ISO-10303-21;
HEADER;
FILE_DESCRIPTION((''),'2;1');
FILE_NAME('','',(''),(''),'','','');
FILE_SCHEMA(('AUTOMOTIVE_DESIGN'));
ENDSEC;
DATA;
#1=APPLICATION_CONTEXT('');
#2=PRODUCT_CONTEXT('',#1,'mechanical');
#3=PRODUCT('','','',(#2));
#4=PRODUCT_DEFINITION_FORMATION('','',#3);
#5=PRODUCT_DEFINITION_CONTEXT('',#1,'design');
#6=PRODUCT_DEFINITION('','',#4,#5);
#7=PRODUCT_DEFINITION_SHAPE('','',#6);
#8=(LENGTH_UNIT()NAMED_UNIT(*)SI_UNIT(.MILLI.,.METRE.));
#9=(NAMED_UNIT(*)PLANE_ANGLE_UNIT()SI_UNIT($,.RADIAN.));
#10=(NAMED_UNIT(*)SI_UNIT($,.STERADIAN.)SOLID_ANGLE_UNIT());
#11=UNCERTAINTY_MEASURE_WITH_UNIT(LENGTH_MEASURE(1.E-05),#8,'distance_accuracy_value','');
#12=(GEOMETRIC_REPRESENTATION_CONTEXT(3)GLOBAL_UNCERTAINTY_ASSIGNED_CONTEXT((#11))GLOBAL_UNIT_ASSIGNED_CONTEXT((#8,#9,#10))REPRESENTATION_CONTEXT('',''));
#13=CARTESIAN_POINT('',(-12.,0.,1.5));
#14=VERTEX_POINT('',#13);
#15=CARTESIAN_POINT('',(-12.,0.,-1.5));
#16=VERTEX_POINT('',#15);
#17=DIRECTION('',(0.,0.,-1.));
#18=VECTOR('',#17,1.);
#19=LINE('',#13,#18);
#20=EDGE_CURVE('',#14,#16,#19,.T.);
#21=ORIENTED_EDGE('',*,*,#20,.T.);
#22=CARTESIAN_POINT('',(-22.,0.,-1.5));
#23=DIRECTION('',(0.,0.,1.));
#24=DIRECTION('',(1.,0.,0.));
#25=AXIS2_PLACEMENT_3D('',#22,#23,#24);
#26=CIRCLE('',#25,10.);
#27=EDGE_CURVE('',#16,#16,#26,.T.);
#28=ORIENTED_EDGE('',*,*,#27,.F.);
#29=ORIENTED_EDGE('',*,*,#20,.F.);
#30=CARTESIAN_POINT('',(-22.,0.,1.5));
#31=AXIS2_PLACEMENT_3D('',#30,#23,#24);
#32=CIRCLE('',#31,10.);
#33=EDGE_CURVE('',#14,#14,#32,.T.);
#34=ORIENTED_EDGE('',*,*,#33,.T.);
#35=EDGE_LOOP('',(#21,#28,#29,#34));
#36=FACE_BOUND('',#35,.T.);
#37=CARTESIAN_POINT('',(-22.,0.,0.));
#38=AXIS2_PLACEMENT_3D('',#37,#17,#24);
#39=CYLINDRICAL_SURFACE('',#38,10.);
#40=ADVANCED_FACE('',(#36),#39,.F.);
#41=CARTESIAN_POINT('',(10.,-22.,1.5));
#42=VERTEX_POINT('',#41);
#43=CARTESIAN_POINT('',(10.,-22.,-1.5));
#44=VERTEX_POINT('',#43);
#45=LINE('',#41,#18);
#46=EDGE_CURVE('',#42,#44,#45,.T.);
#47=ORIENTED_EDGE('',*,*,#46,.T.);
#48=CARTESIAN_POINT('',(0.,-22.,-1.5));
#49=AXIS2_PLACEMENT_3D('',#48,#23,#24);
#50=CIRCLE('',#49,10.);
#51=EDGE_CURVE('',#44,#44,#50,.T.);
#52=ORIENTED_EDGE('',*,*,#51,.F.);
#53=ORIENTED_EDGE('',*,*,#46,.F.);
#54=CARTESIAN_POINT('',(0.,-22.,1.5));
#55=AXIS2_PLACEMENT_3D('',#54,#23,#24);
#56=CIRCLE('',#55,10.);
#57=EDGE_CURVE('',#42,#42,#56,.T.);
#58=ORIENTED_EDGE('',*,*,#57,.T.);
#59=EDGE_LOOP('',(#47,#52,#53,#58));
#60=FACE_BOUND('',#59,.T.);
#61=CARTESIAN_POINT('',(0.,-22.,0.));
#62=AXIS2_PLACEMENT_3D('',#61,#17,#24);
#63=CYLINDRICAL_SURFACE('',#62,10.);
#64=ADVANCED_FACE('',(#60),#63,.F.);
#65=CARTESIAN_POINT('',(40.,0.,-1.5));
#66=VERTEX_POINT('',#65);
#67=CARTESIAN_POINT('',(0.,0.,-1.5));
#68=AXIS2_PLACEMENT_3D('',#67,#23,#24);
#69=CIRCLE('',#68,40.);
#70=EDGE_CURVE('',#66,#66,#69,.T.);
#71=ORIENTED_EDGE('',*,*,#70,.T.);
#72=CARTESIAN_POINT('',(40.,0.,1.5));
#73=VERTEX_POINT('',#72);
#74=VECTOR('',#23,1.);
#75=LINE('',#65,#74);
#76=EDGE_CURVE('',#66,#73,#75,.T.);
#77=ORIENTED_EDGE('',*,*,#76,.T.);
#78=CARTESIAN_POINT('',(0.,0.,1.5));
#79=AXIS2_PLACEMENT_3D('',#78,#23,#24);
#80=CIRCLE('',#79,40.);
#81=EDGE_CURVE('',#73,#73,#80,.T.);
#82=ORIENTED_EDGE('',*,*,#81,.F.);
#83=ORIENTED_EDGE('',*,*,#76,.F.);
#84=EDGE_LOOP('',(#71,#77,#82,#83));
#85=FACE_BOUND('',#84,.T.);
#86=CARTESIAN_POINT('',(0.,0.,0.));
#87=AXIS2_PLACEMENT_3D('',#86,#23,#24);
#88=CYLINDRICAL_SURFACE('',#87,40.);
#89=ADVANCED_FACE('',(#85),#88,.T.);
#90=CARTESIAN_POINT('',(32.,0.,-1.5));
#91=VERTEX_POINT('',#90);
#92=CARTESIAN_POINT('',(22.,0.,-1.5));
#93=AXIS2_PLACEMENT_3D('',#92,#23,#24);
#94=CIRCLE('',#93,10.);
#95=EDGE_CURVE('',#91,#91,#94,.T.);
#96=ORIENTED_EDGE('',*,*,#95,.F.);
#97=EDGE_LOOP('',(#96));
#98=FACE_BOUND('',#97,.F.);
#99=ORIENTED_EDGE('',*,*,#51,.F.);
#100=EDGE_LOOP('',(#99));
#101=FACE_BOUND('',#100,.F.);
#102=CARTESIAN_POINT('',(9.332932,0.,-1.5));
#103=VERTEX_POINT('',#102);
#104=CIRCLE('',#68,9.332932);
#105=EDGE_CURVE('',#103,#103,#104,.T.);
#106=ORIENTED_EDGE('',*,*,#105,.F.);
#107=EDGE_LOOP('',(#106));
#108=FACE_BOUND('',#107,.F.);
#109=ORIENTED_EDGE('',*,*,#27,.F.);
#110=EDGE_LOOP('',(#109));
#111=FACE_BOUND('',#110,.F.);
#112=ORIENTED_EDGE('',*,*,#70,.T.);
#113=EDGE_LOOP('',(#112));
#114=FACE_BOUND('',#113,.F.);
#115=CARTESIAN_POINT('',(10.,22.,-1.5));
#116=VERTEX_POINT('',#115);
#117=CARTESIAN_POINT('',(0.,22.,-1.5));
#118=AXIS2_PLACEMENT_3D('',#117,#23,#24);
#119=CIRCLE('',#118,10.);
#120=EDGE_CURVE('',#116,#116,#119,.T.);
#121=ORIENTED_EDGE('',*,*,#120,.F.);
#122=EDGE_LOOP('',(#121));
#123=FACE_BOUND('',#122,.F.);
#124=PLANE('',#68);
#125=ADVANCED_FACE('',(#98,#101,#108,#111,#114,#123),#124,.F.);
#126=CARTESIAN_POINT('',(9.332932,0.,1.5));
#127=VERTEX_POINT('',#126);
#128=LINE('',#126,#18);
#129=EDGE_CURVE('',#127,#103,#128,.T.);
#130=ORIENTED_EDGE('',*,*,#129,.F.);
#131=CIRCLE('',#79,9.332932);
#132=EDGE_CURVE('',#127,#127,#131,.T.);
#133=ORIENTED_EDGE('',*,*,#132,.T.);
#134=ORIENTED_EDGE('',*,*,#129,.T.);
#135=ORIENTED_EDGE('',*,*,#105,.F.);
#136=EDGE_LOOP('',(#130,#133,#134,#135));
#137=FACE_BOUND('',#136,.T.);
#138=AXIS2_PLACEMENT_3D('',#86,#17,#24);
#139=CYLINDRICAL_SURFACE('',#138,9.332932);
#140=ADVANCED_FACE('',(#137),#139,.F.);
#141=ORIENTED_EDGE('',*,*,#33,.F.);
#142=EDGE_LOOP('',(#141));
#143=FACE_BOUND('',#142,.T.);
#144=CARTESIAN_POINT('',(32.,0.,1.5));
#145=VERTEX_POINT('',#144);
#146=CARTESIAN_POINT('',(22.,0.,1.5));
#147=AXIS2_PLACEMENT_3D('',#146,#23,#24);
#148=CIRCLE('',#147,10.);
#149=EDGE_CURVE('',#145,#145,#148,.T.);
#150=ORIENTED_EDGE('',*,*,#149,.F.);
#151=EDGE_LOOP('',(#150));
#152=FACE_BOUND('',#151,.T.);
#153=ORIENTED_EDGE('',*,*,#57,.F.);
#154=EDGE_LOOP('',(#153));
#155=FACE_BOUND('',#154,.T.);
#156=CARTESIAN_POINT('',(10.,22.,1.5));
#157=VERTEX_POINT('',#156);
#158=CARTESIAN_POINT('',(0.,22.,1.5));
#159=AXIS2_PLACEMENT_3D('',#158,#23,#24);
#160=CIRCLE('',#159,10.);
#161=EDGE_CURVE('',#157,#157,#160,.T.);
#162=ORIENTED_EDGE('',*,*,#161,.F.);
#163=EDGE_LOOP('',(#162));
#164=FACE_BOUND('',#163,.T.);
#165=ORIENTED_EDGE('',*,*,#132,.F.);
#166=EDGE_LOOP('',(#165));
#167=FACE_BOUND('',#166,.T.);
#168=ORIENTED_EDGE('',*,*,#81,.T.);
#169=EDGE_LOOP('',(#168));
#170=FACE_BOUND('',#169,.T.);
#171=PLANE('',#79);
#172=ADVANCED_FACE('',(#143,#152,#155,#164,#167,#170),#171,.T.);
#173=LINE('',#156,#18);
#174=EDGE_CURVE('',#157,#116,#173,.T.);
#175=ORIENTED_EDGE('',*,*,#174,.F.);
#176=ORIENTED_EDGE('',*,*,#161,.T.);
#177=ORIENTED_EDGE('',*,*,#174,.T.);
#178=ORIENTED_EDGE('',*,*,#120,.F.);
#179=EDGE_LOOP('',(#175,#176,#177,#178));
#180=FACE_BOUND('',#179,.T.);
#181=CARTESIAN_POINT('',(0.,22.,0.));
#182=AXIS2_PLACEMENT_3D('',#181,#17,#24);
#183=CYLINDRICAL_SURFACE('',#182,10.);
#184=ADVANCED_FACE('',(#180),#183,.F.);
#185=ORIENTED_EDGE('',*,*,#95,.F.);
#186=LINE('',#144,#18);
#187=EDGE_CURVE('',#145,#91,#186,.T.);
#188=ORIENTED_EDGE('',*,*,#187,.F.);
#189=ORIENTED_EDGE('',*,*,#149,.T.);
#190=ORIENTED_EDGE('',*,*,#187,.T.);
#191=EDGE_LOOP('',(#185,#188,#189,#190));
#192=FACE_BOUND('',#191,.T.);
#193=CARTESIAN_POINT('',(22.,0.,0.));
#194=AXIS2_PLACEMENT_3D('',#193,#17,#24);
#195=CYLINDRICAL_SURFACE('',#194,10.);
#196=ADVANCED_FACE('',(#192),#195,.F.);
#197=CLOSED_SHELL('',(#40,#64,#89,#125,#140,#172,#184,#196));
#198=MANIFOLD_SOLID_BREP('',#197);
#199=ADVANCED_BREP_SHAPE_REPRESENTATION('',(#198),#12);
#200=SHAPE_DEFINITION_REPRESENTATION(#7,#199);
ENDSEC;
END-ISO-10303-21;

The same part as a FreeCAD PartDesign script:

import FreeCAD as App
import Part
import Sketcher

V = App.Vector

doc = App.newDocument("Part")
body = doc.addObject("PartDesign::Body", "Body")

sketch1 = doc.addObject("Sketcher::SketchObject", "Sketch")
body.addObject(sketch1)
sketch1.AttachmentSupport = (doc.XY_Plane, [""])
sketch1.MapMode = "FlatFace"
sketch1.addGeometry([
    Part.Circle(V(0, 0, 0), V(0, 0, 1), 40),
    Part.Circle(V(-22, 0, 0), V(0, 0, 1), 10),
    Part.Circle(V(0, -22, 0), V(0, 0, 1), 10),
    Part.Circle(V(0, 0, 0), V(0, 0, 1), 9),
    Part.Circle(V(22, 0, 0), V(0, 0, 1), 10),
    Part.Circle(V(0, 22, 0), V(0, 0, 1), 10),
], False)
sketch1.addConstraint([
    Sketcher.Constraint("Coincident", 0, 3, -1, 1),
    Sketcher.Constraint("Coincident", 3, 3, -1, 1),
    Sketcher.Constraint("Equal", 1, 2),
    Sketcher.Constraint("Equal", 2, 4),
    Sketcher.Constraint("Equal", 4, 5),
    Sketcher.Constraint("Symmetric", 1, 3, 4, 3, -1, 1),
    Sketcher.Constraint("Symmetric", 2, 3, 5, 3, -1, 1),
    Sketcher.Constraint("PointOnObject", 1, 3, -1),
    Sketcher.Constraint("PointOnObject", 2, 3, -2),
    Sketcher.Constraint("Diameter", 0, 80.0),
    Sketcher.Constraint("Diameter", 1, 20.0),
    Sketcher.Constraint("DistanceX", 1, 3, -1, 1, 22.0),
    Sketcher.Constraint("DistanceY", 2, 3, -1, 1, 22.0),
    Sketcher.Constraint("Diameter", 3, 18.665864),
])
pad1 = doc.addObject("PartDesign::Pad", "Pad")
body.addObject(pad1)
pad1.Profile = sketch1
pad1.Length = 3
pad1.Midplane = True

doc.recompute()
